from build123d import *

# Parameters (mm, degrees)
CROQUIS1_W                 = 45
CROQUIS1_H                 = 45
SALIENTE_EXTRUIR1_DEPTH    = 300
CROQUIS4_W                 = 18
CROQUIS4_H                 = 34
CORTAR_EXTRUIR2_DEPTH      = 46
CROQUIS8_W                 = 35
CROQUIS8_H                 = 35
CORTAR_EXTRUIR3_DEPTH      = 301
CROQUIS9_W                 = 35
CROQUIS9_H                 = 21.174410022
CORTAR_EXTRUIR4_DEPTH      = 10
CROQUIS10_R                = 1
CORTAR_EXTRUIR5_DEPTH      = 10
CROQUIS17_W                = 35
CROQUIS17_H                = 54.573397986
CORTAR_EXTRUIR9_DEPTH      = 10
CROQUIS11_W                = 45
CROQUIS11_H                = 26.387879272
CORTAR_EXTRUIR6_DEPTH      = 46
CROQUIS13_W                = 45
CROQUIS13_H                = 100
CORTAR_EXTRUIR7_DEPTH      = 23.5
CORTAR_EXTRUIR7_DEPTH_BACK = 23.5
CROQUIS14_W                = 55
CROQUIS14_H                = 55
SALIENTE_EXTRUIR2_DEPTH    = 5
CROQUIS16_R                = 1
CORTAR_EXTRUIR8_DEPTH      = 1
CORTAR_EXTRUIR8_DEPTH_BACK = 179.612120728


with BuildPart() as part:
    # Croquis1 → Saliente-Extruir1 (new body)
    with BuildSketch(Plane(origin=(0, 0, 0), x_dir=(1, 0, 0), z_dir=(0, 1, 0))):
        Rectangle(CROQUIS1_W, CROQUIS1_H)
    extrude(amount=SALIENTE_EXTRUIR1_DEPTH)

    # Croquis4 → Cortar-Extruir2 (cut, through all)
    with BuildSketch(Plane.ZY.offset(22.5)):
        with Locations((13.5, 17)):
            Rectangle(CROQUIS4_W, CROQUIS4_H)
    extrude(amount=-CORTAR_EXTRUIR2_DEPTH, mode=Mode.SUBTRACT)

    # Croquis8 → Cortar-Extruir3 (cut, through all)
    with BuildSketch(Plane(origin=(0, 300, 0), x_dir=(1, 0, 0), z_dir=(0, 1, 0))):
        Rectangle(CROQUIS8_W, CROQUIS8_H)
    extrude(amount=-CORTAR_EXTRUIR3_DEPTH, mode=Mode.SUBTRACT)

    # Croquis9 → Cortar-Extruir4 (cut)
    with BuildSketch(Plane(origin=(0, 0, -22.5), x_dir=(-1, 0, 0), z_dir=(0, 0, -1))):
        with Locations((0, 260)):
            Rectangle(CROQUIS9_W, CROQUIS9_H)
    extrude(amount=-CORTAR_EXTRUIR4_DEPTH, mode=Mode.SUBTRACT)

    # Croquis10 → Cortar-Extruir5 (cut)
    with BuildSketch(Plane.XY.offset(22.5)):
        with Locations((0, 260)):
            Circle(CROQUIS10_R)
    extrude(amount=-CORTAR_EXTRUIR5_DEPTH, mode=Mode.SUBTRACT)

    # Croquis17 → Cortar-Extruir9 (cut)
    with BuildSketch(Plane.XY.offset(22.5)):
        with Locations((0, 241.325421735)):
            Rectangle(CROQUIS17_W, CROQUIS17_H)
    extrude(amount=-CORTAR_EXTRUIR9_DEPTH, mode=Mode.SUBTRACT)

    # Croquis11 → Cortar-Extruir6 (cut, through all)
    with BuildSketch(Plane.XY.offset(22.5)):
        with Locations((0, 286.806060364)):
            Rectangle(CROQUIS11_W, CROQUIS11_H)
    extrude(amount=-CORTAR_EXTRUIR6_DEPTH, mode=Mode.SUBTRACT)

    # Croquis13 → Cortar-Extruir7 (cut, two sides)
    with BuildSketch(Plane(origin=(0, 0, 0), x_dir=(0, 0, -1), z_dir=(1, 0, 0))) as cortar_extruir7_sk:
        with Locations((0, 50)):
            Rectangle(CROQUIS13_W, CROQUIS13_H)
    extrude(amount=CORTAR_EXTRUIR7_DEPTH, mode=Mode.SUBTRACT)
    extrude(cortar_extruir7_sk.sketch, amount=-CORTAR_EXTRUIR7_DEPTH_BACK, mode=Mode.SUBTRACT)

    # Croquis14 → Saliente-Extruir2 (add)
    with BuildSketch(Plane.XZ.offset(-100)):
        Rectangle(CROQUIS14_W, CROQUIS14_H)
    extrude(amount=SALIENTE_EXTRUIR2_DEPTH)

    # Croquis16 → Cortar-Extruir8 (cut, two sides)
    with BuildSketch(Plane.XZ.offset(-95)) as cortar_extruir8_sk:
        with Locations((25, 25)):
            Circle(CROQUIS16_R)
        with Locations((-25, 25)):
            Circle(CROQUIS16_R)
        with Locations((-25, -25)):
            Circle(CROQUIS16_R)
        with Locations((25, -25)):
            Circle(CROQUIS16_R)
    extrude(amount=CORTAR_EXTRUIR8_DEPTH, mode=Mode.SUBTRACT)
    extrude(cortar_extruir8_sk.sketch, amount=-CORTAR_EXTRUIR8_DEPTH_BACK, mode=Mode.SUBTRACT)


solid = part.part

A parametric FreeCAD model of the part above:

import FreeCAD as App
import Part
import Sketcher

V = App.Vector

doc = App.newDocument("Part")
body = doc.addObject("PartDesign::Body", "Body")

# Sketch on XZ plane
sketch1 = doc.addObject("Sketcher::SketchObject", "Sketch")
body.addObject(sketch1)
sketch1.AttachmentSupport = (doc.XZ_Plane, [""])
sketch1.MapMode = "FlatFace"
sketch1.addGeometry(Part.LineSegment(V(-22, -22, 0), V(-22, 22, 0)), False)
sketch1.addGeometry(Part.LineSegment(V(-22, 22, 0), V(22, 22, 0)), False)
sketch1.addGeometry(Part.LineSegment(V(22, 22, 0), V(22, -22, 0)), False)
sketch1.addGeometry(Part.LineSegment(V(22, -22, 0), V(-22, -22, 0)), False)
sketch1.addConstraint(Sketcher.Constraint("Coincident", 0, 2, 1, 1))
sketch1.addConstraint(Sketcher.Constraint("Coincident", 1, 2, 2, 1))
sketch1.addConstraint(Sketcher.Constraint("Coincident", 2, 2, 3, 1))
sketch1.addConstraint(Sketcher.Constraint("Coincident", 3, 2, 0, 1))
sketch1.addConstraint(Sketcher.Constraint("Vertical", 0))
sketch1.addConstraint(Sketcher.Constraint("Horizontal", 1))
sketch1.addConstraint(Sketcher.Constraint("Vertical", 2))
sketch1.addConstraint(Sketcher.Constraint("Horizontal", 3))
sketch1.addConstraint(Sketcher.Constraint("Symmetric", 0, 2, 2, 2, -1, 1))
sketch1.addConstraint(Sketcher.Constraint("Equal", 3, 0))
sketch1.addConstraint(Sketcher.Constraint("DistanceX", 1, 1, 1, 2, 45.0))
pad1 = doc.addObject("PartDesign::Pad", "Pad")
body.addObject(pad1)
pad1.Profile = sketch1
pad1.Length = 300
pad1.Reversed = True

# Sketch on YZ plane
sketch2 = doc.addObject("Sketcher::SketchObject", "Sketch001")
body.addObject(sketch2)
sketch2.AttachmentSupport = (doc.YZ_Plane, [""])
sketch2.MapMode = "FlatFace"
sketch2.AttachmentOffset = App.Placement(V(0, 0, -22.5), App.Rotation())
sketch2.addGeometry(Part.LineSegment(V(34, 4, 0), V(0, 4, 0)), False)
sketch2.addGeometry(Part.LineSegment(V(0, 4, 0), V(0, 22, 0)), False)
sketch2.addGeometry(Part.LineSegment(V(0, 22, 0), V(34, 22, 0)), False)
sketch2.addGeometry(Part.LineSegment(V(34, 22, 0), V(34, 4, 0)), False)
sketch2.addConstraint(Sketcher.Constraint("Coincident", 0, 2, 1, 1))
sketch2.addConstraint(Sketcher.Constraint("Coincident", 1, 2, 2, 1))
sketch2.addConstraint(Sketcher.Constraint("Coincident", 2, 2, 3, 1))
sketch2.addConstraint(Sketcher.Constraint("Coincident", 3, 2, 0, 1))
sketch2.addConstraint(Sketcher.Constraint("Horizontal", 0))
sketch2.addConstraint(Sketcher.Constraint("Vertical", 1))
sketch2.addConstraint(Sketcher.Constraint("Horizontal", 2))
sketch2.addConstraint(Sketcher.Constraint("Vertical", 3))
sketch2.addConstraint(Sketcher.Constraint("PointOnObject", 0, 2, -2))
sketch2.addConstraint(Sketcher.Constraint("DistanceX", 0, 2, 0, 1, 34.0))
sketch2.addConstraint(Sketcher.Constraint("DistanceY", 1, 1, 1, 2, 18.0))
sketch2.addConstraint(Sketcher.Constraint("DistanceY", -1, 1, 0, 2, 4.5))
pocket1 = doc.addObject("PartDesign::Pocket", "Pocket")
body.addObject(pocket1)
pocket1.Profile = sketch2
pocket1.Type = "ThroughAll"
pocket1.Reversed = True

# Sketch on XZ plane
sketch3 = doc.addObject("Sketcher::SketchObject", "Sketch002")
body.addObject(sketch3)
sketch3.AttachmentSupport = (doc.XZ_Plane, [""])
sketch3.MapMode = "FlatFace"
sketch3.AttachmentOffset = App.Placement(V(0, 0, -300), App.Rotation())
sketch3.addGeometry(Part.LineSegment(V(-18, -18, 0), V(-18, 18, 0)), False)
sketch3.addGeometry(Part.LineSegment(V(-18, 18, 0), V(18, 18, 0)), False)
sketch3.addGeometry(Part.LineSegment(V(18, 18, 0), V(18, -18, 0)), False)
sketch3.addGeometry(Part.LineSegment(V(18, -18, 0), V(-18, -18, 0)), False)
sketch3.addConstraint(Sketcher.Constraint("Coincident", 0, 2, 1, 1))
sketch3.addConstraint(Sketcher.Constraint("Coincident", 1, 2, 2, 1))
sketch3.addConstraint(Sketcher.Constraint("Coincident", 2, 2, 3, 1))
sketch3.addConstraint(Sketcher.Constraint("Coincident", 3, 2, 0, 1))
sketch3.addConstraint(Sketcher.Constraint("Vertical", 0))
sketch3.addConstraint(Sketcher.Constraint("Horizontal", 1))
sketch3.addConstraint(Sketcher.Constraint("Vertical", 2))
sketch3.addConstraint(Sketcher.Constraint("Horizontal", 3))
sketch3.addConstraint(Sketcher.Constraint("Symmetric", 0, 2, 2, 2, -1, 1))
sketch3.addConstraint(Sketcher.Constraint("Equal", 3, 0))
sketch3.addConstraint(Sketcher.Constraint("DistanceX", 1, 1, 1, 2, 35.0))
pocket2 = doc.addObject("PartDesign::Pocket", "Pocket001")
body.addObject(pocket2)
pocket2.Profile = sketch3
pocket2.Type = "ThroughAll"
pocket2.Reversed = True

# Sketch on XY plane
sketch4 = doc.addObject("Sketcher::SketchObject", "Sketch003")
body.addObject(sketch4)
sketch4.AttachmentSupport = (doc.XY_Plane, [""])
sketch4.MapMode = "FlatFace"
sketch4.AttachmentOffset = App.Placement(V(0, 0, -22.5), App.Rotation())
sketch4.addGeometry(Part.LineSegment(V(18, 271, 0), V(18, 249, 0)), False)
sketch4.addGeometry(Part.LineSegment(V(18, 249, 0), V(-18, 249, 0)), False)
sketch4.addGeometry(Part.LineSegment(V(-18, 249, 0), V(-18, 271, 0)), False)
sketch4.addGeometry(Part.LineSegment(V(-18, 271, 0), V(18, 271, 0)), False)
sketch4.addConstraint(Sketcher.Constraint("Coincident", 0, 2, 1, 1))
sketch4.addConstraint(Sketcher.Constraint("Coincident", 1, 2, 2, 1))
sketch4.addConstraint(Sketcher.Constraint("Coincident", 2, 2, 3, 1))
sketch4.addConstraint(Sketcher.Constraint("Coincident", 3, 2, 0, 1))
sketch4.addConstraint(Sketcher.Constraint("Vertical", 0))
sketch4.addConstraint(Sketcher.Constraint("Horizontal", 1))
sketch4.addConstraint(Sketcher.Constraint("Vertical", 2))
sketch4.addConstraint(Sketcher.Constraint("Horizontal", 3))
sketch4.addConstraint(Sketcher.Constraint("DistanceX", 1, 2, 1, 1, 35.0))
sketch4.addConstraint(Sketcher.Constraint("DistanceX", -1, 1, 0, 2, 17.5))
sketch4.addConstraint(Sketcher.Constraint("DistanceY", 0, 2, 0, 1, 21.17441))
sketch4.addConstraint(Sketcher.Constraint("DistanceY", -1, 1, 0, 2, 249.412795))
pocket3 = doc.addObject("PartDesign::Pocket", "Pocket002")
body.addObject(pocket3)
pocket3.Profile = sketch4
pocket3.Length = 10
pocket3.Reversed = True

# Sketch on XY plane
sketch5 = doc.addObject("Sketcher::SketchObject", "Sketch004")
body.addObject(sketch5)
sketch5.AttachmentSupport = (doc.XY_Plane, [""])
sketch5.MapMode = "FlatFace"
sketch5.AttachmentOffset = App.Placement(V(0, 0, 22.5), App.Rotation())
sketch5.addGeometry(Part.Circle(V(0, 260, 0), V(0, 0, 1), 1), False)
sketch5.addConstraint(Sketcher.Constraint("PointOnObject", 0, 3, -2))
sketch5.addConstraint(Sketcher.Constraint("Diameter", 0, 2.0))
sketch5.addConstraint(Sketcher.Constraint("DistanceY", -1, 1, 0, 3, 260.0))
pocket4 = doc.addObject("PartDesign::Pocket", "Pocket003")
body.addObject(pocket4)
pocket4.Profile = sketch5
pocket4.Length = 10

# Sketch on XY plane
sketch6 = doc.addObject("Sketcher::SketchObject", "Sketch005")
body.addObject(sketch6)
sketch6.AttachmentSupport = (doc.XY_Plane, [""])
sketch6.MapMode = "FlatFace"
sketch6.AttachmentOffset = App.Placement(V(0, 0, 22.5), App.Rotation())
sketch6.addGeometry(Part.LineSegment(V(-18, 269, 0), V(-18, 214, 0)), False)
sketch6.addGeometry(Part.LineSegment(V(-18, 214, 0), V(18, 214, 0)), False)
sketch6.addGeometry(Part.LineSegment(V(18, 214, 0), V(18, 269, 0)), False)
sketch6.addGeometry(Part.LineSegment(V(18, 269, 0), V(-18, 269, 0)), False)
sketch6.addConstraint(Sketcher.Constraint("Coincident", 0, 2, 1, 1))
sketch6.addConstraint(Sketcher.Constraint("Coincident", 1, 2, 2, 1))
sketch6.addConstraint(Sketcher.Constraint("Coincident", 2, 2, 3, 1))
sketch6.addConstraint(Sketcher.Constraint("Coincident", 3, 2, 0, 1))
sketch6.addConstraint(Sketcher.Constraint("Vertical", 0))
sketch6.addConstraint(Sketcher.Constraint("Horizontal", 1))
sketch6.addConstraint(Sketcher.Constraint("Vertical", 2))
sketch6.addConstraint(Sketcher.Constraint("Horizontal", 3))
sketch6.addConstraint(Sketcher.Constraint("DistanceX", 1, 1, 1, 2, 35.0))
sketch6.addConstraint(Sketcher.Constraint("DistanceX", 0, 2, -1, 1, 17.5))
sketch6.addConstraint(Sketcher.Constraint("DistanceY", 0, 2, 0, 1, 54.573398))
sketch6.addConstraint(Sketcher.Constraint("DistanceY", -1, 1, 2, 2, 268.612121))
pocket5 = doc.addObject("PartDesign::Pocket", "Pocket004")
body.addObject(pocket5)
pocket5.Profile = sketch6
pocket5.Length = 10

# Sketch on XY plane
sketch7 = doc.addObject("Sketcher::SketchObject", "Sketch006")
body.addObject(sketch7)
sketch7.AttachmentSupport = (doc.XY_Plane, [""])
sketch7.MapMode = "FlatFace"
sketch7.AttachmentOffset = App.Placement(V(0, 0, 22.5), App.Rotation())
sketch7.addGeometry(Part.LineSegment(V(-22, 300, 0), V(-22, 274, 0)), False)
sketch7.addGeometry(Part.LineSegment(V(-22, 274, 0), V(22, 274, 0)), False)
sketch7.addGeometry(Part.LineSegment(V(22, 274, 0), V(22, 300, 0)), False)
sketch7.addGeometry(Part.LineSegment(V(22, 300, 0), V(-22, 300, 0)), False)
sketch7.addConstraint(Sketcher.Constraint("Coincident", 0, 2, 1, 1))
sketch7.addConstraint(Sketcher.Constraint("Coincident", 1, 2, 2, 1))
sketch7.addConstraint(Sketcher.Constraint("Coincident", 2, 2, 3, 1))
sketch7.addConstraint(Sketcher.Constraint("Coincident", 3, 2, 0, 1))
sketch7.addConstraint(Sketcher.Constraint("Vertical", 0))
sketch7.addConstraint(Sketcher.Constraint("Horizontal", 1))
sketch7.addConstraint(Sketcher.Constraint("Vertical", 2))
sketch7.addConstraint(Sketcher.Constraint("Horizontal", 3))
sketch7.addConstraint(Sketcher.Constraint("DistanceX", 1, 1, 1, 2, 45.0))
sketch7.addConstraint(Sketcher.Constraint("DistanceY", -1, 1, 2, 2, 300.0))
sketch7.addConstraint(Sketcher.Constraint("DistanceX", 0, 2, -1, 1, 22.5))
sketch7.addConstraint(Sketcher.Constraint("DistanceY", 0, 2, 0, 1, 26.387879))
pocket6 = doc.addObject("PartDesign::Pocket", "Pocket005")
body.addObject(pocket6)
pocket6.Profile = sketch7
pocket6.Type = "ThroughAll"

# Sketch on YZ plane
sketch8 = doc.addObject("Sketcher::SketchObject", "Sketch007")
body.addObject(sketch8)
sketch8.AttachmentSupport = (doc.YZ_Plane, [""])
sketch8.MapMode = "FlatFace"
sketch8.addGeometry(Part.LineSegment(V(100, 22, 0), V(0, 22, 0)), False)
sketch8.addGeometry(Part.LineSegment(V(0, 22, 0), V(0, -22, 0)), False)
sketch8.addGeometry(Part.LineSegment(V(0, -22, 0), V(100, -22, 0)), False)
sketch8.addGeometry(Part.LineSegment(V(100, -22, 0), V(100, 22, 0)), False)
sketch8.addConstraint(Sketcher.Constraint("Coincident", 0, 2, 1, 1))
sketch8.addConstraint(Sketcher.Constraint("Coincident", 1, 2, 2, 1))
sketch8.addConstraint(Sketcher.Constraint("Coincident", 2, 2, 3, 1))
sketch8.addConstraint(Sketcher.Constraint("Coincident", 3, 2, 0, 1))
sketch8.addConstraint(Sketcher.Constraint("Horizontal", 0))
sketch8.addConstraint(Sketcher.Constraint("Vertical", 1))
sketch8.addConstraint(Sketcher.Constraint("Horizontal", 2))
sketch8.addConstraint(Sketcher.Constraint("Vertical", 3))
sketch8.addConstraint(Sketcher.Constraint("Symmetric", 0, 2, 1, 2, -1, 1))
sketch8.addConstraint(Sketcher.Constraint("DistanceX", 0, 2, 0, 1, 100.0))
sketch8.addConstraint(Sketcher.Constraint("DistanceY", 1, 2, 1, 1, 45.0))
pocket7 = doc.addObject("PartDesign::Pocket", "Pocket006")
body.addObject(pocket7)
pocket7.Profile = sketch8
pocket7.Type = "ThroughAll"
pocket7.Midplane = True

# Sketch on XZ plane
sketch9 = doc.addObject("Sketcher::SketchObject", "Sketch008")
body.addObject(sketch9)
sketch9.AttachmentSupport = (doc.XZ_Plane, [""])
sketch9.MapMode = "FlatFace"
sketch9.AttachmentOffset = App.Placement(V(0, 0, -100), App.Rotation())
sketch9.addGeometry(Part.LineSegment(V(-28, 28, 0), V(-28, -28, 0)), False)
sketch9.addGeometry(Part.LineSegment(V(-28, -28, 0), V(28, -28, 0)), False)
sketch9.addGeometry(Part.LineSegment(V(28, -28, 0), V(28, 28, 0)), False)
sketch9.addGeometry(Part.LineSegment(V(28, 28, 0), V(-28, 28, 0)), False)
sketch9.addConstraint(Sketcher.Constraint("Coincident", 0, 2, 1, 1))
sketch9.addConstraint(Sketcher.Constraint("Coincident", 1, 2, 2, 1))
sketch9.addConstraint(Sketcher.Constraint("Coincident", 2, 2, 3, 1))
sketch9.addConstraint(Sketcher.Constraint("Coincident", 3, 2, 0, 1))
sketch9.addConstraint(Sketcher.Constraint("Vertical", 0))
sketch9.addConstraint(Sketcher.Constraint("Horizontal", 1))
sketch9.addConstraint(Sketcher.Constraint("Vertical", 2))
sketch9.addConstraint(Sketcher.Constraint("Horizontal", 3))
sketch9.addConstraint(Sketcher.Constraint("Symmetric", 0, 2, 2, 2, -1, 1))
sketch9.addConstraint(Sketcher.Constraint("Equal", 3, 0))
sketch9.addConstraint(Sketcher.Constraint("DistanceX", 1, 1, 1, 2, 55.0))
pad2 = doc.addObject("PartDesign::Pad", "Pad001")
body.addObject(pad2)
pad2.Profile = sketch9
pad2.Length = 5

# Sketch on XZ plane
sketch10 = doc.addObject("Sketcher::SketchObject", "Sketch009")
body.addObject(sketch10)
sketch10.AttachmentSupport = (doc.XZ_Plane, [""])
sketch10.MapMode = "FlatFace"
sketch10.AttachmentOffset = App.Placement(V(0, 0, -95), App.Rotation())
sketch10.addGeometry(Part.Circle(V(25, 25, 0), V(0, 0, 1), 1), False)
sketch10.addGeometry(Part.Circle(V(-25, 25, 0), V(0, 0, 1), 1), False)
sketch10.addGeometry(Part.Circle(V(-25, -25, 0), V(0, 0, 1), 1), False)
sketch10.addGeometry(Part.Circle(V(25, -25, 0), V(0, 0, 1), 1), False)
sketch10.addConstraint(Sketcher.Constraint("Equal", 0, 1))
sketch10.addConstraint(Sketcher.Constraint("Equal", 1, 2))
sketch10.addConstraint(Sketcher.Constraint("Equal", 2, 3))
sketch10.addConstraint(Sketcher.Constraint("Symmetric", 0, 3, 2, 3, -1, 1))
sketch10.addConstraint(Sketcher.Constraint("Symmetric", 1, 3, 3, 3, -1, 1))
sketch10.addConstraint(Sketcher.Constraint("Symmetric", 0, 3, 1, 3, -2))
sketch10.addConstraint(Sketcher.Constraint("Diameter", 0, 2.0))
sketch10.addConstraint(Sketcher.Constraint("DistanceX", -1, 1, 0, 3, 25.0))
sketch10.addConstraint(Sketcher.Constraint("DistanceY", -1, 1, 0, 3, 25.0))
pocket8 = doc.addObject("PartDesign::Pocket", "Pocket007")
body.addObject(pocket8)
pocket8.Profile = sketch10
pocket8.Type = "ThroughAll"
pocket8.Midplane = True

doc.recompute()
